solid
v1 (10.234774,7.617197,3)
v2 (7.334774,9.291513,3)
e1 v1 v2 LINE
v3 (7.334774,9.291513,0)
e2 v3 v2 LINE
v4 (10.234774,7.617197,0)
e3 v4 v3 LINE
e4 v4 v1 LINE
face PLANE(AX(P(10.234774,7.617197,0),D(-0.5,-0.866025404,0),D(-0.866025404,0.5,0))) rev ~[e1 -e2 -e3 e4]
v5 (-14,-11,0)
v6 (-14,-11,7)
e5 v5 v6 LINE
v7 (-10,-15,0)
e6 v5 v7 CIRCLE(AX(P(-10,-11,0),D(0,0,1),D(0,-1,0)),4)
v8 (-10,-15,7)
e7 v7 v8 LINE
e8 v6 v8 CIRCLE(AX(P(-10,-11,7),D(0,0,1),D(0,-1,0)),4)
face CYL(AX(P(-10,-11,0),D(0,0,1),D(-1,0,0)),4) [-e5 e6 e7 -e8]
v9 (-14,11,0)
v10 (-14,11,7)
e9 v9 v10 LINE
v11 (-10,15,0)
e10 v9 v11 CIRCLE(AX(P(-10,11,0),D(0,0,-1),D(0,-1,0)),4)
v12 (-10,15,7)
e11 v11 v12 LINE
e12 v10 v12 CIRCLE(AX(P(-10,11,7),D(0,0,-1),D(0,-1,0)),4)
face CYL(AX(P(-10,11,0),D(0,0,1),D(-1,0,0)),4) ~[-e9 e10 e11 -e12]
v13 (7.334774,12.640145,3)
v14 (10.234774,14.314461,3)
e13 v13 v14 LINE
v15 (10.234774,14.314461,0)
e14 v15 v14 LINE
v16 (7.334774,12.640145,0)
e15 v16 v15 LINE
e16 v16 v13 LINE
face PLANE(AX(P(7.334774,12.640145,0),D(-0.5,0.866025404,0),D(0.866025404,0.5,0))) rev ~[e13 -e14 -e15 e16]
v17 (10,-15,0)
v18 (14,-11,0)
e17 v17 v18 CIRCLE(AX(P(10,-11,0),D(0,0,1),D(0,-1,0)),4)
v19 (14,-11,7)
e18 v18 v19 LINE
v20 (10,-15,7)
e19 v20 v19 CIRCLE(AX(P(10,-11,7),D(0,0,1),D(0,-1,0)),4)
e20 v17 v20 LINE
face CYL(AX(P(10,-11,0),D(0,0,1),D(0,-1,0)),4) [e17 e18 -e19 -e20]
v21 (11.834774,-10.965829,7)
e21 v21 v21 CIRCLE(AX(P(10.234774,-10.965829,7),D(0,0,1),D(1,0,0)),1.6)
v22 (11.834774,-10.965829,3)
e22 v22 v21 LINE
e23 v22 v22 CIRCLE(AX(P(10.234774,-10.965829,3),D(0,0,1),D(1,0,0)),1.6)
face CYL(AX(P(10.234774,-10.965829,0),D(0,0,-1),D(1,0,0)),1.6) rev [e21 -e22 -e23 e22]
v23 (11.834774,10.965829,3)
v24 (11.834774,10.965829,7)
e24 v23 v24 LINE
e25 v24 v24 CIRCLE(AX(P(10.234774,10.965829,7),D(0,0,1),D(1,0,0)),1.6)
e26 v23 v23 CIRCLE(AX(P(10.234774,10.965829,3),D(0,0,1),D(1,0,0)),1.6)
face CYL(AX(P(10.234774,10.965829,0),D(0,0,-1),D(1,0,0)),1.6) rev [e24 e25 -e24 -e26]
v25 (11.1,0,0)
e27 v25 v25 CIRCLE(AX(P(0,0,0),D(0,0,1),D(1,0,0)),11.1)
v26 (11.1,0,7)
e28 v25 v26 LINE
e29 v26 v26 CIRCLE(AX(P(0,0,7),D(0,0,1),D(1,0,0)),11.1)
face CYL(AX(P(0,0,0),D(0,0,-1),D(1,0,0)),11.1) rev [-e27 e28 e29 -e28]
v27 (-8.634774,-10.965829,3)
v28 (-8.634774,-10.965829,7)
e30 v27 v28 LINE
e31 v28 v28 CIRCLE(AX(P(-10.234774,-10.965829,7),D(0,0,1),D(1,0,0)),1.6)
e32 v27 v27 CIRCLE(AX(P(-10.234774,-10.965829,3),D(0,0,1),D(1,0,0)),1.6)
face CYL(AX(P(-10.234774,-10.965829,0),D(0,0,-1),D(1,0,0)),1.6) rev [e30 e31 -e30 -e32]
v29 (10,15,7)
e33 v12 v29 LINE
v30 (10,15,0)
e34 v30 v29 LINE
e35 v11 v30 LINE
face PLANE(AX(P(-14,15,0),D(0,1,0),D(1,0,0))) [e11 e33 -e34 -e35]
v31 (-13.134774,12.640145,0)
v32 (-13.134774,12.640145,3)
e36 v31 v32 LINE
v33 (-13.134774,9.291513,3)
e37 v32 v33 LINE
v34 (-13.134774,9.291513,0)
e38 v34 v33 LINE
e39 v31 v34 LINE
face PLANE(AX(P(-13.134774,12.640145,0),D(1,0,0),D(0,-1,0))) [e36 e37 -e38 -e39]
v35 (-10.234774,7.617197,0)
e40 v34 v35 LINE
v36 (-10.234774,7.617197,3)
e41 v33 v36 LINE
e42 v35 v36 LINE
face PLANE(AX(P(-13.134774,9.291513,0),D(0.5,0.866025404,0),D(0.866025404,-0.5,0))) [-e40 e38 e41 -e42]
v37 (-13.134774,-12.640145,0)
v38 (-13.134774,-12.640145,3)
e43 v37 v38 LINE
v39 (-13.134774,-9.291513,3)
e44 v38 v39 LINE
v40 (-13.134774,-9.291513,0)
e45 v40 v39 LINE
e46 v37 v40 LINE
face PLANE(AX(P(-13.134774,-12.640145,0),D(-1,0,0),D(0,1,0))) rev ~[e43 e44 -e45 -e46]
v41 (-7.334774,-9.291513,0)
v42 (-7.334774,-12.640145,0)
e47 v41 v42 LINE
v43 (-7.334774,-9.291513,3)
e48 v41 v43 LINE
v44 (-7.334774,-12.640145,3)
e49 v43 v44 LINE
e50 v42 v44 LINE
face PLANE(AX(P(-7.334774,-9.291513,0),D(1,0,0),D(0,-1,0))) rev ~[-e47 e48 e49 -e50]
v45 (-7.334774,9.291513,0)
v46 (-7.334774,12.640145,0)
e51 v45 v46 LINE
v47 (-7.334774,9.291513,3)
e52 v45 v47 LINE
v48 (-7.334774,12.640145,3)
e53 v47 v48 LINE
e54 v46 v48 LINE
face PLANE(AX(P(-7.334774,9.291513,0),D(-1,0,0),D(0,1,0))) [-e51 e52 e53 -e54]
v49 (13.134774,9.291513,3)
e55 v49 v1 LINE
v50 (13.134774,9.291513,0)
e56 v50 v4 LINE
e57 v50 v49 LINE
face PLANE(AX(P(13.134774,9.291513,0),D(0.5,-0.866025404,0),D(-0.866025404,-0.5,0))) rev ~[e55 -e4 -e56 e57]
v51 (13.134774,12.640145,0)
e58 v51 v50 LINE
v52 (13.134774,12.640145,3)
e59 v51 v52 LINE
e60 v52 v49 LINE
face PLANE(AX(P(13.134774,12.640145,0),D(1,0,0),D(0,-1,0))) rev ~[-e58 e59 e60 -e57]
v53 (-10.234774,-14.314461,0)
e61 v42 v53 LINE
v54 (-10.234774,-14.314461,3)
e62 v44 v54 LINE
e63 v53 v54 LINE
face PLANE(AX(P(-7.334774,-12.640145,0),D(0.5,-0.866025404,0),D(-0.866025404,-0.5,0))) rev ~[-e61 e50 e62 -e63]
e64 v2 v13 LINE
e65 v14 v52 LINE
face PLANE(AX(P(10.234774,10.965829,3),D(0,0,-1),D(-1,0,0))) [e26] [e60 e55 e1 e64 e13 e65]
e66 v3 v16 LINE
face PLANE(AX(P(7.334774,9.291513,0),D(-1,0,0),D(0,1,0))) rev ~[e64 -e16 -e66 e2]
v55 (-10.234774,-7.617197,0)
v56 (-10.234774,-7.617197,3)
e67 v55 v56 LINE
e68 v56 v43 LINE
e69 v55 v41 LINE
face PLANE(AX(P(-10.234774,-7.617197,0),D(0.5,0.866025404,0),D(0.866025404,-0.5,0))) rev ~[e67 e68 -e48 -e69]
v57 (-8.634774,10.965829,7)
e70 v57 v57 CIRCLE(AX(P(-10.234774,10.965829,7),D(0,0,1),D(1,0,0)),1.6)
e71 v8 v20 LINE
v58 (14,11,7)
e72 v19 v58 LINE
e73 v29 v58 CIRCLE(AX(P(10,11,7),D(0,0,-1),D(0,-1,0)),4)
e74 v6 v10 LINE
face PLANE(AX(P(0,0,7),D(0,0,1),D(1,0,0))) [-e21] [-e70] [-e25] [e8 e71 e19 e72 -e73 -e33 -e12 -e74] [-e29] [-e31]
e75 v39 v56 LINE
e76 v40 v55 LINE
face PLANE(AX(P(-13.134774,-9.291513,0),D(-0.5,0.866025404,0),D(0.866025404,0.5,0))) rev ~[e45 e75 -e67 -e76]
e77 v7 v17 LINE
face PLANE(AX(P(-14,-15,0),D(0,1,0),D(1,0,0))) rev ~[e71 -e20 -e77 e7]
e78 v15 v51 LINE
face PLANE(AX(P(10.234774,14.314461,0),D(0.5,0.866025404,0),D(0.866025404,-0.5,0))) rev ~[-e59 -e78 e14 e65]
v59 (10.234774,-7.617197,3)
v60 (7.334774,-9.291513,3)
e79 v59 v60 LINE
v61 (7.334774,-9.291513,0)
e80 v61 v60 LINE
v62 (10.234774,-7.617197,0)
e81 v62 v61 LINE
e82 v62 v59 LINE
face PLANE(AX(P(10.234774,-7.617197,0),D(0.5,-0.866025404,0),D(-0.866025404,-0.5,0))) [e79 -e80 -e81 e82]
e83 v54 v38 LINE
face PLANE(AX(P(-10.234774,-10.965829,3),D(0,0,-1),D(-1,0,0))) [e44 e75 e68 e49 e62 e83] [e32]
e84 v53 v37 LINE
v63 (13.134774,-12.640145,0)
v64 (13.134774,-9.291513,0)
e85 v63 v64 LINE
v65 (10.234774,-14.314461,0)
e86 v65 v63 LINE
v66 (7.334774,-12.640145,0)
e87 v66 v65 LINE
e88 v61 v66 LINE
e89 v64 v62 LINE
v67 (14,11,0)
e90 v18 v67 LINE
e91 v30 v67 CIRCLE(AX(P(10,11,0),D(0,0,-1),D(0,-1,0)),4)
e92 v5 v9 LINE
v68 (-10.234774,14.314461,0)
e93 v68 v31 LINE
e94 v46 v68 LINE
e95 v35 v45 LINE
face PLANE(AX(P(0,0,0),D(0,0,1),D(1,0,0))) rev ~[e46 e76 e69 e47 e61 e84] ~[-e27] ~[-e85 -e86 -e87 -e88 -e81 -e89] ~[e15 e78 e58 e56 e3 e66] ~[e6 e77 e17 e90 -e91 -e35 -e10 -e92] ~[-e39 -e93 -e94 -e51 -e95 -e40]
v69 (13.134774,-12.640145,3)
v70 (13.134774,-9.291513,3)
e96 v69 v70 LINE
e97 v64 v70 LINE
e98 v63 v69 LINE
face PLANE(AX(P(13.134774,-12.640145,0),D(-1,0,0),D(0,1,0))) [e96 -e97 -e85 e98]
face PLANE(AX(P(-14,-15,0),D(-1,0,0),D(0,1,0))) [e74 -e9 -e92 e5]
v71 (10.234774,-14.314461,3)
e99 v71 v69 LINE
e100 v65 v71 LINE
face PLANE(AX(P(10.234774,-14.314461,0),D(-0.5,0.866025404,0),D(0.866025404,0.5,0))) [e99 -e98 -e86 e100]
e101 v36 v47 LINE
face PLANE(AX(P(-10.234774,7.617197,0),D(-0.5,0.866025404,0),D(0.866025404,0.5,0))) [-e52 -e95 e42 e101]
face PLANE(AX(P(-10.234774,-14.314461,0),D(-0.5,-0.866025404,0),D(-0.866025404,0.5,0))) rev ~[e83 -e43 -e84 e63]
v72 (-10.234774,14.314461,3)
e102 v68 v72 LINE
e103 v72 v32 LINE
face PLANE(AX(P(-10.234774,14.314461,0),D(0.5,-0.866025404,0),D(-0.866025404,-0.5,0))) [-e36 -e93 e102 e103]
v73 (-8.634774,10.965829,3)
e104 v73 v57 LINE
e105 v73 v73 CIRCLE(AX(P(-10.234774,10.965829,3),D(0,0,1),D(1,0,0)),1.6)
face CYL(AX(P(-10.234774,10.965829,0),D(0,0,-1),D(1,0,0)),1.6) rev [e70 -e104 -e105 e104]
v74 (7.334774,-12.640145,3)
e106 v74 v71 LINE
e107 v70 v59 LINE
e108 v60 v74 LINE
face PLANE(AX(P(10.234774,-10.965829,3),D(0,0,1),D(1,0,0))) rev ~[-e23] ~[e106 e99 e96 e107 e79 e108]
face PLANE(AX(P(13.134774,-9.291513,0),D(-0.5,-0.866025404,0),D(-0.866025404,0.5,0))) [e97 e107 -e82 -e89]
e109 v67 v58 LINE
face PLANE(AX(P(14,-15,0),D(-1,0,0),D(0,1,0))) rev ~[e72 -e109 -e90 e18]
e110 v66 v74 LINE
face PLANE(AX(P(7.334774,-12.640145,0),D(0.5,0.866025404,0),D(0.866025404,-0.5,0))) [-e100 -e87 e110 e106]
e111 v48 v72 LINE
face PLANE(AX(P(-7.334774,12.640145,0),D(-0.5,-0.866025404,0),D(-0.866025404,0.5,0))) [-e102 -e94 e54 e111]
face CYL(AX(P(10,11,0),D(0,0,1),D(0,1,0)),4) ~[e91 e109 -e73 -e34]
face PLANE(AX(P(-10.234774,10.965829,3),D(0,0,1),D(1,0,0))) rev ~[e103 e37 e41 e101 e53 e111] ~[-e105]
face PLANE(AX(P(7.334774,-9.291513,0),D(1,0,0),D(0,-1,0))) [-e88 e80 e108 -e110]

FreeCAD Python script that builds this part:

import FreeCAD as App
import Part
import Sketcher
Q = App.Units.Quantity


def edges_at(feature, points):
    """Names of the edges that pass closest to the given points."""
    edges = feature.Shape.Edges
    near = lambda p: min(range(len(edges)), key=lambda i: edges[i].distToShape(Part.Vertex(*p))[0])
    return sorted({f"Edge{near(p) + 1}" for p in points})


def add_polygon(sketch, points):
    """Adds a closed chain of lines whose ends are joined by coincident constraints."""
    first, n = sketch.GeometryCount, len(points)
    for a, b in zip(points, points[1:] + points[:1]):
        sketch.addGeometry(Part.LineSegment(App.Vector(*a, 0), App.Vector(*b, 0)), False)
    for i in range(n):
        sketch.addConstraint(Sketcher.Constraint("Coincident", first + i, 2, first + (i + 1) % n, 1))

doc = App.newDocument("Part")
body = doc.addObject("PartDesign::Body", "Body")

sketch1 = body.newObject("Sketcher::SketchObject", "Sketch")
sketch1.AttachmentSupport = (doc.getObject("XY_Plane"), [""])
sketch1.MapMode = "FlatFace"
add_polygon(sketch1, [(-14, 15), (-14, -15), (14, -15), (14, 15)])
sketch1.addGeometry(Part.Circle(App.Vector(-10.2, -11, 0), App.Vector(0, 0, 1), 1.6), False)
sketch1.addGeometry(Part.Circle(App.Vector(10.2, -11, 0), App.Vector(0, 0, 1), 1.6), False)
sketch1.addGeometry(Part.Circle(App.Vector(-10.2, 11, 0), App.Vector(0, 0, 1), 1.6), False)
sketch1.addGeometry(Part.Circle(App.Vector(0, 0, 0), App.Vector(0, 0, 1), 11.1), False)
sketch1.addGeometry(Part.Circle(App.Vector(10.2, 11, 0), App.Vector(0, 0, 1), 1.6), False)
sketch1.addConstraint(Sketcher.Constraint("Vertical", 0))
sketch1.addConstraint(Sketcher.Constraint("Horizontal", 1))
sketch1.addConstraint(Sketcher.Constraint("Vertical", 2))
sketch1.addConstraint(Sketcher.Constraint("Horizontal", 3))
sketch1.addConstraint(Sketcher.Constraint("Coincident", 7, 3, -1, 1))
sketch1.addConstraint(Sketcher.Constraint("Equal", 4, 5))
sketch1.addConstraint(Sketcher.Constraint("Equal", 5, 6))
sketch1.addConstraint(Sketcher.Constraint("Equal", 6, 8))
sketch1.addConstraint(Sketcher.Constraint("Symmetric", 5, 3, 6, 3, -1, 1))
sketch1.addConstraint(Sketcher.Constraint("Symmetric", 4, 3, 8, 3, -1, 1))
sketch1.addConstraint(Sketcher.Constraint("Symmetric", 0, 2, 2, 2, -1, 1))
sketch1.addConstraint(Sketcher.Constraint("Symmetric", 4, 3, 5, 3, -2))
sketch1.addConstraint(Sketcher.Constraint("Diameter", 4, 3.2))
sketch1.addConstraint(Sketcher.Constraint("Diameter", 7, 22.2))
sketch1.addConstraint(Sketcher.Constraint("DistanceX", 1, 1, 1, 2, 28.0))
sketch1.addConstraint(Sketcher.Constraint("DistanceY", 0, 2, 0, 1, 30.0))
sketch1.addConstraint(Sketcher.Constraint("DistanceY", 4, 3, -1, 1, 10.965829))
sketch1.addConstraint(Sketcher.Constraint("DistanceX", 4, 3, -1, 1, 10.234774))
pad1 = body.newObject("PartDesign::Pad", "Pad")
pad1.Profile = sketch1
pad1.Length = 7

sketch2 = body.newObject("Sketcher::SketchObject", "Sketch001")
sketch2.AttachmentSupport = (doc.getObject("XY_Plane"), [""])
sketch2.MapMode = "FlatFace"
add_polygon(sketch2, [(7.3, 9.3), (10.2, 7.6), (13.1, 9.3), (13.1, 12.6), (10.2, 14.3), (7.3, 12.6)])
sketch2.addGeometry(Part.Circle(App.Vector(10.2, 11, 0), App.Vector(0, 0, 1), 1.6), False)
add_polygon(sketch2, [(-13.1, 12.6), (-13.1, 9.3), (-10.2, 7.6), (-7.3, 9.3), (-7.3, 12.6), (-10.2, 14.3)])
sketch2.addGeometry(Part.Circle(App.Vector(-10.2, 11, 0), App.Vector(0, 0, 1), 1.6), False)
add_polygon(sketch2, [(-10.2, -7.6), (-13.1, -9.3), (-13.1, -12.6), (-10.2, -14.3), (-7.3, -12.6), (-7.3, -9.3)])
sketch2.addGeometry(Part.Circle(App.Vector(-10.2, -11, 0), App.Vector(0, 0, 1), 1.6), False)
add_polygon(sketch2, [(13.1, -9.3), (10.2, -7.6), (7.3, -9.3), (7.3, -12.6), (10.2, -14.3), (13.1, -12.6)])
sketch2.addGeometry(Part.Circle(App.Vector(10.2, -11, 0), App.Vector(0, 0, 1), 1.6), False)
sketch2.addConstraint(Sketcher.Constraint("Vertical", 2))
sketch2.addConstraint(Sketcher.Constraint("Vertical", 5))
sketch2.addConstraint(Sketcher.Constraint("Vertical", 7))
sketch2.addConstraint(Sketcher.Constraint("Vertical", 10))
sketch2.addConstraint(Sketcher.Constraint("Vertical", 15))
sketch2.addConstraint(Sketcher.Constraint("Vertical", 18))
sketch2.addConstraint(Sketcher.Constraint("Vertical", 23))
sketch2.addConstraint(Sketcher.Constraint("Vertical", 26))
sketch2.addConstraint(Sketcher.Constraint("Equal", 6, 13))
sketch2.addConstraint(Sketcher.Constraint("Equal", 13, 20))
sketch2.addConstraint(Sketcher.Constraint("Equal", 20, 27))
sketch2.addConstraint(Sketcher.Constraint("Symmetric", 6, 3, 20, 3, -1, 1))
sketch2.addConstraint(Sketcher.Constraint("Symmetric", 13, 3, 27, 3, -1, 1))
sketch2.addConstraint(Sketcher.Constraint("Symmetric", 1, 2, 14, 2, -1, 1))
sketch2.addConstraint(Sketcher.Constraint("Symmetric", 3, 2, 16, 2, -1, 1))
sketch2.addConstraint(Sketcher.Constraint("Symmetric", 4, 2, 17, 2, -1, 1))
sketch2.addConstraint(Sketcher.Constraint("Symmetric", 0, 2, 19, 2, -1, 1))
sketch2.addConstraint(Sketcher.Constraint("Symmetric", 8, 2, 21, 2, -1, 1))
sketch2.addConstraint(Sketcher.Constraint("Symmetric", 9, 2, 22, 2, -1, 1))
sketch2.addConstraint(Sketcher.Constraint("Symmetric", 11, 2, 24, 2, -1, 1))
sketch2.addConstraint(Sketcher.Constraint("Symmetric", 12, 2, 25, 2, -1, 1))
sketch2.addConstraint(Sketcher.Constraint("Symmetric", 6, 3, 13, 3, -2))
sketch2.addConstraint(Sketcher.Constraint("Symmetric", 1, 2, 7, 2, -2))
sketch2.addConstraint(Sketcher.Constraint("Symmetric", 0, 2, 8, 2, -2))
sketch2.addConstraint(Sketcher.Constraint("Symmetric", 5, 2, 9, 2, -2))
sketch2.addConstraint(Sketcher.Constraint("Symmetric", 3, 2, 11, 2, -2))
sketch2.addConstraint(Sketcher.Constraint("Parallel", 0, 3))
sketch2.addConstraint(Sketcher.Constraint("Parallel", 1, 4))
sketch2.addConstraint(Sketcher.Constraint("Parallel", 3, 8))
sketch2.addConstraint(Sketcher.Constraint("Parallel", 8, 11))
sketch2.addConstraint(Sketcher.Constraint("Parallel", 9, 12))
sketch2.addConstraint(Sketcher.Constraint("Parallel", 11, 16))
sketch2.addConstraint(Sketcher.Constraint("Parallel", 16, 19))
sketch2.addConstraint(Sketcher.Constraint("Parallel", 19, 21))
sketch2.addConstraint(Sketcher.Constraint("Parallel", 21, 24))
sketch2.addConstraint(Sketcher.Constraint("Horizontal", 2, 2, 4, 2))
sketch2.addConstraint(Sketcher.Constraint("Horizontal", 1, 2, 5, 2))
sketch2.addConstraint(Sketcher.Constraint("Vertical", 27, 3, 0, 2))
sketch2.addConstraint(Sketcher.Constraint("Diameter", 6, 3.2))
sketch2.addConstraint(Sketcher.Constraint("Angle", 0, Q("-30 deg")))
sketch2.addConstraint(Sketcher.Constraint("DistanceX", 6, 3, 1, 2, 2.9))
sketch2.addConstraint(Sketcher.Constraint("DistanceY", 2, 1, 2, 2, 3.348632))
sketch2.addConstraint(Sketcher.Constraint("DistanceY", -1, 1, 6, 3, 10.965829))
sketch2.addConstraint(Sketcher.Constraint("DistanceY", -1, 1, 3, 2, 14.314461))
sketch2.addConstraint(Sketcher.Constraint("DistanceX", -1, 1, 6, 3, 10.234774))
pocket1 = body.newObject("PartDesign::Pocket", "Pocket")
pocket1.Profile = sketch2
pocket1.Length = 3
pocket1.Reversed = True
doc.recompute()

fillet = body.newObject("PartDesign::Fillet", "Fillet")
fillet.Base = (pocket1, edges_at(pocket1, [
    (14, -15, 3.5),
    (-14, -15, 3.5),
    (-14, 15, 3.5),
    (14, 15, 3.5),
]))
fillet.Radius = 4

doc.recompute()
